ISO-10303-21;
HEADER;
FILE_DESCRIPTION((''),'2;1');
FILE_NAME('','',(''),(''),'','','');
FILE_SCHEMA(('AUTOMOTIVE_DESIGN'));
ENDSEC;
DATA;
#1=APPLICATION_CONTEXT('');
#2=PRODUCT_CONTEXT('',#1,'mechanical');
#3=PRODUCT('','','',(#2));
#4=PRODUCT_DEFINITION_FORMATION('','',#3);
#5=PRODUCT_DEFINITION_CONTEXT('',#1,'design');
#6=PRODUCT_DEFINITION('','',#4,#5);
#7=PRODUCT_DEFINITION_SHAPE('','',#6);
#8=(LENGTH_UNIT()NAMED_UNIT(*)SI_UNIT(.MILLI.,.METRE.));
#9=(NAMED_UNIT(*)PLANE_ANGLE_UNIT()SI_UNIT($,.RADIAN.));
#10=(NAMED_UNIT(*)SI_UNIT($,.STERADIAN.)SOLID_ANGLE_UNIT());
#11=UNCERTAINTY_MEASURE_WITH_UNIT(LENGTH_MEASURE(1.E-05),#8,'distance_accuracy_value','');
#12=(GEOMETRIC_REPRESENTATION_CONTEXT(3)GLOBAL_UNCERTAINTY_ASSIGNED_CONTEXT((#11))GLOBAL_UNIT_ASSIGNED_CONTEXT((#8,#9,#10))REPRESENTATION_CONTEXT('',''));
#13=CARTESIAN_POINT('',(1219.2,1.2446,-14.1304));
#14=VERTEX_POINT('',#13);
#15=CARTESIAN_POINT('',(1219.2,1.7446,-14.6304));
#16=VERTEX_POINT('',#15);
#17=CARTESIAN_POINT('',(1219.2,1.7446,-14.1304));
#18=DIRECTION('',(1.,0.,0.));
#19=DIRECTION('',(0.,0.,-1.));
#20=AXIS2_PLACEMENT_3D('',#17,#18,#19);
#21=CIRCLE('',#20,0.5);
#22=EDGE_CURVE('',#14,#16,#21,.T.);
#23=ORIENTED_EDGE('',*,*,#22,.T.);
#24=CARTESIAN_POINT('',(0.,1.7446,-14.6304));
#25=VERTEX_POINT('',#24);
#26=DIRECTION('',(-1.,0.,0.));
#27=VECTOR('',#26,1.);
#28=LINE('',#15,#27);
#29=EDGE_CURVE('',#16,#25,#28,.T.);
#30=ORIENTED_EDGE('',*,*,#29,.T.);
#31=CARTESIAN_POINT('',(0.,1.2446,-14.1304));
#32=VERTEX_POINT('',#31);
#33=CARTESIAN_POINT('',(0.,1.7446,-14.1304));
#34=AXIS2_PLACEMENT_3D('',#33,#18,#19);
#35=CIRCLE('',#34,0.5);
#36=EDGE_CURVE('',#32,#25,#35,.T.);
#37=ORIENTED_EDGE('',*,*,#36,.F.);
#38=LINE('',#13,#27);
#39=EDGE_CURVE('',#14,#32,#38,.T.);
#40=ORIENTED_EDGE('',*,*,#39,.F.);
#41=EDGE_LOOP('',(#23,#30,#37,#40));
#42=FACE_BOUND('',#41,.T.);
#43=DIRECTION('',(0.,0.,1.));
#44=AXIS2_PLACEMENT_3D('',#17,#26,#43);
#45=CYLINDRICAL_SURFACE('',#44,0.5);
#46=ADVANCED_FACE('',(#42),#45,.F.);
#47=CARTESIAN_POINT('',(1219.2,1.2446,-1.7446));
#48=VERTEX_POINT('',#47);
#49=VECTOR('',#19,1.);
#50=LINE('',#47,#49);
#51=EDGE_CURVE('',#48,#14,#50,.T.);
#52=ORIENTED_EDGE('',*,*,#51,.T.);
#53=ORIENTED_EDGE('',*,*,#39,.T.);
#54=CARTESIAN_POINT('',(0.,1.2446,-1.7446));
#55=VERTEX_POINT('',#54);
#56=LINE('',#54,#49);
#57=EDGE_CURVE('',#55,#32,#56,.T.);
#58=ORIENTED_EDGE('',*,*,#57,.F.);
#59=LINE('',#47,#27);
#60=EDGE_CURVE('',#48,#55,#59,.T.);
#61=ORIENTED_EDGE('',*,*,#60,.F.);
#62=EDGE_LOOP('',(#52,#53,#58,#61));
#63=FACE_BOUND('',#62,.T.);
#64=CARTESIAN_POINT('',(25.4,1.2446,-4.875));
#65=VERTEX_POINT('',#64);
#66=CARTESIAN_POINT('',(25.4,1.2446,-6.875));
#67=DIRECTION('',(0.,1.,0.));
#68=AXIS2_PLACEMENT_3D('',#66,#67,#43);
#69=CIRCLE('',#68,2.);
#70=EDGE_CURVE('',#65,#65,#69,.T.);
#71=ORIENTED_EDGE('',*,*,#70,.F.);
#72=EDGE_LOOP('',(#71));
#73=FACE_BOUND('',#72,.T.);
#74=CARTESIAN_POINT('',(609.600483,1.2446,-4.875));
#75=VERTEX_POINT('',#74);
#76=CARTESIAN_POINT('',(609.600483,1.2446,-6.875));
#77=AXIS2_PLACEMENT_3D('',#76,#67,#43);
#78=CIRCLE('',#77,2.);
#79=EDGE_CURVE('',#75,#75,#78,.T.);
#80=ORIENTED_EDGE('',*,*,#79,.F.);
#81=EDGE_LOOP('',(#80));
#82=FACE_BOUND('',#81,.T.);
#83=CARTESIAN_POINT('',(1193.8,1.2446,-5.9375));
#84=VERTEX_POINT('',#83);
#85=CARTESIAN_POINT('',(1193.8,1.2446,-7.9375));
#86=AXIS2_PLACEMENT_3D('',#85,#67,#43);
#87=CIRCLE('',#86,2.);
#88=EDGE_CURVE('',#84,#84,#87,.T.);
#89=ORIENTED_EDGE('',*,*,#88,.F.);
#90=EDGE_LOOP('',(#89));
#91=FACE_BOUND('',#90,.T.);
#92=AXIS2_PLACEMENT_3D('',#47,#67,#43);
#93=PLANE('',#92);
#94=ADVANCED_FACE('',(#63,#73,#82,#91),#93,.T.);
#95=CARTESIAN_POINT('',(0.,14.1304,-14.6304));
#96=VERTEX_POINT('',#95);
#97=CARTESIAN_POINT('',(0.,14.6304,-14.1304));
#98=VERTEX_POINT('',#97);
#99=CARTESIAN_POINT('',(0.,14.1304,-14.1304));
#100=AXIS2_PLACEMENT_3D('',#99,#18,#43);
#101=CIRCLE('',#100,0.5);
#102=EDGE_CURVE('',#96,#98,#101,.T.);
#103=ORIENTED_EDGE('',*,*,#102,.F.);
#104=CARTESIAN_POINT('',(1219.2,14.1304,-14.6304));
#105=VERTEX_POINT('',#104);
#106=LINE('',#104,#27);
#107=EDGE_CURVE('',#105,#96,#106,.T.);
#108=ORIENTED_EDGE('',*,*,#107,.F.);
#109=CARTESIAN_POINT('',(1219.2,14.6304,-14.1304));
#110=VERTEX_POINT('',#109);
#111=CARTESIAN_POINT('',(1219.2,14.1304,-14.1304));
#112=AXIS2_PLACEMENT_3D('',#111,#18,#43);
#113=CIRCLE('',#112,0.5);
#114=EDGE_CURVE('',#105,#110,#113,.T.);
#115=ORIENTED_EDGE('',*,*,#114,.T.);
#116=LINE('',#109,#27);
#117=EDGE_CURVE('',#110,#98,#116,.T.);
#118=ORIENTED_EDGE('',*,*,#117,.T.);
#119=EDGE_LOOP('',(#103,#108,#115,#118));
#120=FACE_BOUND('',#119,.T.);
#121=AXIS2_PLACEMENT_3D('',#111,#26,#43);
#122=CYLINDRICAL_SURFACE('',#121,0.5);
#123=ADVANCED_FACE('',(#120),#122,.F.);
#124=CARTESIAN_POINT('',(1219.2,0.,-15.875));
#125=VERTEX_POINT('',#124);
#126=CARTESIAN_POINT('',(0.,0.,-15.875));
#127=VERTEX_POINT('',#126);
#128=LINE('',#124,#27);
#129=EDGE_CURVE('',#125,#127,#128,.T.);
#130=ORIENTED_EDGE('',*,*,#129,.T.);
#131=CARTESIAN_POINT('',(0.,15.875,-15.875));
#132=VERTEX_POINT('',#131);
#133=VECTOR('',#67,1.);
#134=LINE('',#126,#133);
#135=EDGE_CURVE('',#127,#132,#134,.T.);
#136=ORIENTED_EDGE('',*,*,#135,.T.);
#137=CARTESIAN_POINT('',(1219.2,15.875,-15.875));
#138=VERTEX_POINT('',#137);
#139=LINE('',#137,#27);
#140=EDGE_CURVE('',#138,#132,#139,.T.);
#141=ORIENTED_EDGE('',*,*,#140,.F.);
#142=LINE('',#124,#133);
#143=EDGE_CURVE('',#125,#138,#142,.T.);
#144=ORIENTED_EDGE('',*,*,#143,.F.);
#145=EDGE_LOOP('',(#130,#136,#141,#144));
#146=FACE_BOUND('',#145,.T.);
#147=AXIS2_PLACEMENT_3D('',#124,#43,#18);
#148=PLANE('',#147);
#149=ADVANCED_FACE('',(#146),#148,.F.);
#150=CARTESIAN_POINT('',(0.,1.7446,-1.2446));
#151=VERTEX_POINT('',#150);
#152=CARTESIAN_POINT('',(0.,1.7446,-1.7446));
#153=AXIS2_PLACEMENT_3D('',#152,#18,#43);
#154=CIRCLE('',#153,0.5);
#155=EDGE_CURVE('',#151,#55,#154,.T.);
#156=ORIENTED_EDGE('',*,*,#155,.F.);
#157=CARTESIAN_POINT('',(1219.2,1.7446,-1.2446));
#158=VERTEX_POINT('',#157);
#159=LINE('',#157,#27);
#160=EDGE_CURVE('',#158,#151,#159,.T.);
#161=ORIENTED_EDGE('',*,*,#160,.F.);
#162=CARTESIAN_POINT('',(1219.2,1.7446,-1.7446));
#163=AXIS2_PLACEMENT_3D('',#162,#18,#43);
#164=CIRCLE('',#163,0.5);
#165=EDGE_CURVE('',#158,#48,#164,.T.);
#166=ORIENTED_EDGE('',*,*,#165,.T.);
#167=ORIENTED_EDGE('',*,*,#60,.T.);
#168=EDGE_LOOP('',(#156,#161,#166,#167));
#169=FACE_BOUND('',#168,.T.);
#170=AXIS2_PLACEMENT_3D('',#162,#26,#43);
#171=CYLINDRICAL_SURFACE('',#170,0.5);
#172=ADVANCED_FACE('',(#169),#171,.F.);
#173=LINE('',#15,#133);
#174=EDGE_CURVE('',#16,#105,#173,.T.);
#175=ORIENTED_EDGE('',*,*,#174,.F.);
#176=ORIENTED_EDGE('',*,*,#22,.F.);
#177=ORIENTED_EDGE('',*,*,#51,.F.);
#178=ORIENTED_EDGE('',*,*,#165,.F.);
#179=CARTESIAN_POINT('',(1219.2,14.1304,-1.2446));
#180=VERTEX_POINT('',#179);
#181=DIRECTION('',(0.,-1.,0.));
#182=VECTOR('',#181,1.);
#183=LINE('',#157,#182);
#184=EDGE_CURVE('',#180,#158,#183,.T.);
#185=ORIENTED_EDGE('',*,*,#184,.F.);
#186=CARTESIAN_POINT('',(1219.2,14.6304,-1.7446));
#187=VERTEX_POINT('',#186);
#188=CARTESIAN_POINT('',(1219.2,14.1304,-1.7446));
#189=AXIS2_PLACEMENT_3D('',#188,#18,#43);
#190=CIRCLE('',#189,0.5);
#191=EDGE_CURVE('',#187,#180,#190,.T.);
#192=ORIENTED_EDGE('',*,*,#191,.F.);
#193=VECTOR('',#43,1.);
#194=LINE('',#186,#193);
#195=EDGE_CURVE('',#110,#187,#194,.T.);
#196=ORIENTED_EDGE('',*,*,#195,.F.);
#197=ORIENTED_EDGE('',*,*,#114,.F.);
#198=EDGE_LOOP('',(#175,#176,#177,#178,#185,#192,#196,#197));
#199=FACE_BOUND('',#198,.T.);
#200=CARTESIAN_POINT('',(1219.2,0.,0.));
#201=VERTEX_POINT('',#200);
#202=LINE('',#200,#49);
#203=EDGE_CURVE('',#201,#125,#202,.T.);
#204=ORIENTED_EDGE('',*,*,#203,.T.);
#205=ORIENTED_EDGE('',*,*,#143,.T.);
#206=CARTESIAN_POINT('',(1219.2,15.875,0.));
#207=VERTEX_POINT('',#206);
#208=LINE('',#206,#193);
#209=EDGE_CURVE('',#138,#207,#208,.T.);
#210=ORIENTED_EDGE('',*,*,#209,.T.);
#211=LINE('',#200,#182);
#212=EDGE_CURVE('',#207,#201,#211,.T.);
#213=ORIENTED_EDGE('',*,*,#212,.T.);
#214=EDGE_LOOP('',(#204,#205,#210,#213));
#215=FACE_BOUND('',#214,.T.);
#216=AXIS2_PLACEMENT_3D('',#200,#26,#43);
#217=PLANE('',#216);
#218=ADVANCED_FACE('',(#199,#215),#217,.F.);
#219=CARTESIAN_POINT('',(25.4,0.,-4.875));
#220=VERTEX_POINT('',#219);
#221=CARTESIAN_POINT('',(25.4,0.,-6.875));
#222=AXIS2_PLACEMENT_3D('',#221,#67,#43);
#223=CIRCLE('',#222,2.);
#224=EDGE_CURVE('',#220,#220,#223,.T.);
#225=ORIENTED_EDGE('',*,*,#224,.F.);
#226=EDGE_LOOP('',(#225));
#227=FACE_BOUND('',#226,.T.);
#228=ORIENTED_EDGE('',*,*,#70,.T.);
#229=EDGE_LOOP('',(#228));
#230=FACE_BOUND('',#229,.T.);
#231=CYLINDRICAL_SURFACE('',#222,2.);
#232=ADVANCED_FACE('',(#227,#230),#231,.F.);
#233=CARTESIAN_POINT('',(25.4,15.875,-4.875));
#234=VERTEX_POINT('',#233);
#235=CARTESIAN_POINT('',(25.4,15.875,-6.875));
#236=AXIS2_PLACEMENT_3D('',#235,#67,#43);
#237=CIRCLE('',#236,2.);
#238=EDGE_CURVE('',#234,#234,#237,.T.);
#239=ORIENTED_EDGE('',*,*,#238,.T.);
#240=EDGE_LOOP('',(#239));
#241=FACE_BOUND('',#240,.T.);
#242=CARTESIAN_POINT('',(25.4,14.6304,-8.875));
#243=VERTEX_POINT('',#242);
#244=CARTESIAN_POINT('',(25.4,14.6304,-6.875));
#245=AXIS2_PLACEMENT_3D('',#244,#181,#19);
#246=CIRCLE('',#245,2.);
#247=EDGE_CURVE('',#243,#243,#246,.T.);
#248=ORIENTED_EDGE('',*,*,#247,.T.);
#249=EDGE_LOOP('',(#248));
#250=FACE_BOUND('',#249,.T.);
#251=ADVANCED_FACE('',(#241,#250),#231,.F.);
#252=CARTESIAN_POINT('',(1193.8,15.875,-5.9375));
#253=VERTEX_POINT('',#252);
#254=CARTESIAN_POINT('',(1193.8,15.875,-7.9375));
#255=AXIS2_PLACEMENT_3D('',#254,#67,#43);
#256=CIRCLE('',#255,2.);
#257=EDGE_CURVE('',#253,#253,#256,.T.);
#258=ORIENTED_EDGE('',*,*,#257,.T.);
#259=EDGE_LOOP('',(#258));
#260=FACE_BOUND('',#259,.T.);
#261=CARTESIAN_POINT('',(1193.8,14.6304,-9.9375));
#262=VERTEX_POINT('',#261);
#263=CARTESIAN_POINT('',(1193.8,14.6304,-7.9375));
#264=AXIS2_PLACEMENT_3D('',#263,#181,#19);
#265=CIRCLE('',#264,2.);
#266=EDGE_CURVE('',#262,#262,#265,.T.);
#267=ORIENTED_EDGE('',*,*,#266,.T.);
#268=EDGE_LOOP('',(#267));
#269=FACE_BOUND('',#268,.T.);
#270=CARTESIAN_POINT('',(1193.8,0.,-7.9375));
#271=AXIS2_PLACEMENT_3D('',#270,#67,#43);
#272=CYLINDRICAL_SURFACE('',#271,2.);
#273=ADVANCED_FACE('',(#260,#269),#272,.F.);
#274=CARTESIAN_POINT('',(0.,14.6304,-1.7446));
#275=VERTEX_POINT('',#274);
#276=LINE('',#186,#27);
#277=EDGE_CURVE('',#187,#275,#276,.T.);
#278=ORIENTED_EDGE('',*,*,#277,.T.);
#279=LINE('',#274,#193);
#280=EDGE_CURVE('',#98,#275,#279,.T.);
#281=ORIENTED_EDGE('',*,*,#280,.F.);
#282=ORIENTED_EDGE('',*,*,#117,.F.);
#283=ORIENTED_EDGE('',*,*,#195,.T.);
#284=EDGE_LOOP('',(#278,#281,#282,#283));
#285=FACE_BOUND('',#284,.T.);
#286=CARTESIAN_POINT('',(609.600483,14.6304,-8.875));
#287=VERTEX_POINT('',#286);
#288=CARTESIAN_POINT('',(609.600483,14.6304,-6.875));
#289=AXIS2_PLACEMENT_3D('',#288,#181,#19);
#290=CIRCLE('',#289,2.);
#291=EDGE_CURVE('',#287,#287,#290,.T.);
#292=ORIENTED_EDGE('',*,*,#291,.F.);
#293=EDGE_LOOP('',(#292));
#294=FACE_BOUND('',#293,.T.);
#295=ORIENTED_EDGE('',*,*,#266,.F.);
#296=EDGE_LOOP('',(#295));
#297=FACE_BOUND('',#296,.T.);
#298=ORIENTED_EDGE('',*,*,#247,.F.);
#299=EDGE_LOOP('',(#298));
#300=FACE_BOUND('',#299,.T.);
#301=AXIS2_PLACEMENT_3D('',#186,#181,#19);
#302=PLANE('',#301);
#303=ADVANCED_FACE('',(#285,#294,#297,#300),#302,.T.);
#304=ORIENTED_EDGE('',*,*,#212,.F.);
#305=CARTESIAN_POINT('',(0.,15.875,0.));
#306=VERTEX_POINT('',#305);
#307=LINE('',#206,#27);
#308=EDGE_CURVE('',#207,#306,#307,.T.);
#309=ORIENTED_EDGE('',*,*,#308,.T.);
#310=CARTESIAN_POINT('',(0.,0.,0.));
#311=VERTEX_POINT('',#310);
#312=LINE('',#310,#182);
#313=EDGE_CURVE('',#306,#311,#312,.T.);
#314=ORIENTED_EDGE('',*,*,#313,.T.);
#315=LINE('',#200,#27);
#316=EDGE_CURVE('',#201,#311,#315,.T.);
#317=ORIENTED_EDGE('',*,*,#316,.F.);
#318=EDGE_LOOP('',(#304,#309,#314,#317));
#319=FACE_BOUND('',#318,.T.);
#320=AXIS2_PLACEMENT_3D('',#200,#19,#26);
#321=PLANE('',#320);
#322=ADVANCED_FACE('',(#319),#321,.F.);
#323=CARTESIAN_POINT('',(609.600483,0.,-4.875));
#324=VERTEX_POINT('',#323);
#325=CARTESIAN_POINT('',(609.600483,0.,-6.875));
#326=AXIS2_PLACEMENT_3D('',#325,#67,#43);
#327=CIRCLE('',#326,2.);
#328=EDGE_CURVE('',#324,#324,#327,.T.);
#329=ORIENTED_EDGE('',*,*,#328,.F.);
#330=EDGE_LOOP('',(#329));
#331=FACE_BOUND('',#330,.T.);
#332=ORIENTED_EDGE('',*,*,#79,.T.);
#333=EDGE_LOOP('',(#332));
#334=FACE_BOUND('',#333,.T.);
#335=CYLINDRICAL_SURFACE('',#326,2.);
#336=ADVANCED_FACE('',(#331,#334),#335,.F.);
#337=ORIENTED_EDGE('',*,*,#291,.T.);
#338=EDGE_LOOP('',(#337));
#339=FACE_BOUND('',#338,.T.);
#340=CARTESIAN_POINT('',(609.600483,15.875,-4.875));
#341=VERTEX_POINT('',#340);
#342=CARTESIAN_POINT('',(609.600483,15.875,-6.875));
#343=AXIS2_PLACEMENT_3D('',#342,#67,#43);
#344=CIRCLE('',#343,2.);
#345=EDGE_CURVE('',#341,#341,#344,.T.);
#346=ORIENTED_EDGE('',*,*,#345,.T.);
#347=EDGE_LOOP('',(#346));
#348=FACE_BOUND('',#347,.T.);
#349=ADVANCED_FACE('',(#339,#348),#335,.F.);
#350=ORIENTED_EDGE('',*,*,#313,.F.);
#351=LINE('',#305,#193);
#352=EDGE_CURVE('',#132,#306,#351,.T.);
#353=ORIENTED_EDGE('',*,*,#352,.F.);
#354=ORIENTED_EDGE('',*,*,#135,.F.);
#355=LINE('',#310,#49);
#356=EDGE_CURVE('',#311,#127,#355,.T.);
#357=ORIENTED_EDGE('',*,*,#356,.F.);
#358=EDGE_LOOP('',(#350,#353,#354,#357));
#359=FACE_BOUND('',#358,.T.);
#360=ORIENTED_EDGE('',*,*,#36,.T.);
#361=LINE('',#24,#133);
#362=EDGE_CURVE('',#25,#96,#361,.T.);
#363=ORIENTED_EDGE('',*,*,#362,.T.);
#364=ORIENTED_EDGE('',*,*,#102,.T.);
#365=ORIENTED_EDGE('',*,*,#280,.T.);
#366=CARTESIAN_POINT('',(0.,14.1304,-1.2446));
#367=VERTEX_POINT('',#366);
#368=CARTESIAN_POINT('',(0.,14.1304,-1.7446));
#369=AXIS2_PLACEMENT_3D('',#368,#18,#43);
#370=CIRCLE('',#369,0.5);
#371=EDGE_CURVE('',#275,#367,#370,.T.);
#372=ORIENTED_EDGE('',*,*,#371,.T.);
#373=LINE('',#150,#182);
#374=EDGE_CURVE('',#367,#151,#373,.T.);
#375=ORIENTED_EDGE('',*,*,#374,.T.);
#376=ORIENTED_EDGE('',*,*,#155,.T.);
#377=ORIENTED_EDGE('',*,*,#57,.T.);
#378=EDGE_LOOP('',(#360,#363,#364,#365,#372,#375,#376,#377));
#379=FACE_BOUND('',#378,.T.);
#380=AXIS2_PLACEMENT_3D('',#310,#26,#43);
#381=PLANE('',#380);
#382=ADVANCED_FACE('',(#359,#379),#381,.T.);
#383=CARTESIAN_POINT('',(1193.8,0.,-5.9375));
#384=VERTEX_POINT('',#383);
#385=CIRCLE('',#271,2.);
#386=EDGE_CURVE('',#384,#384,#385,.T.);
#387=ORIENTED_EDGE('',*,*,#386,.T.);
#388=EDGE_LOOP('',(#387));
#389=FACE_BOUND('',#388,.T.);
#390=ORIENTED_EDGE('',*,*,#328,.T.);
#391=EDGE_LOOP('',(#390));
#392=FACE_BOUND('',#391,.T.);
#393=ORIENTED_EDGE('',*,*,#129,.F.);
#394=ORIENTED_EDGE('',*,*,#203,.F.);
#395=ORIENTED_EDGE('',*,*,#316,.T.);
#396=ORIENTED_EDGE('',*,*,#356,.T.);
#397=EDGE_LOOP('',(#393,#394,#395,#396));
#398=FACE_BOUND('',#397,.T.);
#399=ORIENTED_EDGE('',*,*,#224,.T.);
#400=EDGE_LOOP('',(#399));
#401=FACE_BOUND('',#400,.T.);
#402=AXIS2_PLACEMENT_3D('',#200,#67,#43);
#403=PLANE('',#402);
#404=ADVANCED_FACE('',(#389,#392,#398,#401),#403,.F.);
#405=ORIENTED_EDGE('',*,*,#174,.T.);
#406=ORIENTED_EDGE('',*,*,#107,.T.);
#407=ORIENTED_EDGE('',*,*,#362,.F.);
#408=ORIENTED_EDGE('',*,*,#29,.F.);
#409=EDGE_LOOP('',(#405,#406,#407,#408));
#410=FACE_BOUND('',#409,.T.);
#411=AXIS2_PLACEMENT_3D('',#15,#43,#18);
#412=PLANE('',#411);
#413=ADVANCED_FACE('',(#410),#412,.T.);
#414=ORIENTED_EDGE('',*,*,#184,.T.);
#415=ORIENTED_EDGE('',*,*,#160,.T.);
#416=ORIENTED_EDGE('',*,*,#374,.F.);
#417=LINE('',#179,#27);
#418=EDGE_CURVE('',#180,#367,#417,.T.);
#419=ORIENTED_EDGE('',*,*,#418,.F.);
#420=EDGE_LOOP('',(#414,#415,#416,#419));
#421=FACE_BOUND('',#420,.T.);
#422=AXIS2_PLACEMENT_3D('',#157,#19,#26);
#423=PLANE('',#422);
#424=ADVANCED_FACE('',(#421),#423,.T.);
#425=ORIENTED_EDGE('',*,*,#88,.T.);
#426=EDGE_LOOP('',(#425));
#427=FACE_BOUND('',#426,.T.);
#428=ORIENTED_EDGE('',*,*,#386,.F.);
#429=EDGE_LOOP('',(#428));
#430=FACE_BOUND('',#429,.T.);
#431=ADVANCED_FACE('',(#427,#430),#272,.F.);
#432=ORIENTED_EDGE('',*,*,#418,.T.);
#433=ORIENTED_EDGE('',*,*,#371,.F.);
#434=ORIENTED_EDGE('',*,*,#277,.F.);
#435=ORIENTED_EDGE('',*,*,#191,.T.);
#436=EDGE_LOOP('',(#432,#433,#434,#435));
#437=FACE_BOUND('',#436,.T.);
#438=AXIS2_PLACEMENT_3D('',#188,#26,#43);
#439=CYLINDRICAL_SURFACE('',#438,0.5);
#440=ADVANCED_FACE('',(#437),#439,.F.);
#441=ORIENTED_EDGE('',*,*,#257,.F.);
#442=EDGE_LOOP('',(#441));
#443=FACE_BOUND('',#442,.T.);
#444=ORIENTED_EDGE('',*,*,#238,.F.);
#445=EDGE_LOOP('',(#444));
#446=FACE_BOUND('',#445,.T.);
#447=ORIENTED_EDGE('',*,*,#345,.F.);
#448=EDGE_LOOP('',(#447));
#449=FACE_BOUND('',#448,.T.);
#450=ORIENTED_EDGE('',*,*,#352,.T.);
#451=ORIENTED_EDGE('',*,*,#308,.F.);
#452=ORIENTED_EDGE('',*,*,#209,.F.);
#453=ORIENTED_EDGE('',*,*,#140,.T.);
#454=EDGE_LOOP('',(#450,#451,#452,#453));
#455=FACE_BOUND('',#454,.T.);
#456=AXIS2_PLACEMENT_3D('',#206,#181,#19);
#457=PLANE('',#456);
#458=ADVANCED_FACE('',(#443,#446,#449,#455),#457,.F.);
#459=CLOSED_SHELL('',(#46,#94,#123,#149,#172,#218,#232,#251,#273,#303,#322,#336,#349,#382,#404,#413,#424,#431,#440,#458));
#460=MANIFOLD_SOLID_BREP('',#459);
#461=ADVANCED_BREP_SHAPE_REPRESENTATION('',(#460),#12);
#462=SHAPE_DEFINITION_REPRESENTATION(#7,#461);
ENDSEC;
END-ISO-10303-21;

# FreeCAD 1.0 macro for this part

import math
import FreeCAD as App
import Part
import Sketcher


def add_polygon(sketch, points):
    """Adds a closed chain of lines whose ends are joined by coincident constraints."""
    first, n = sketch.GeometryCount, len(points)
    for a, b in zip(points, points[1:] + points[:1]):
        sketch.addGeometry(Part.LineSegment(App.Vector(*a, 0), App.Vector(*b, 0)), False)
    for i in range(n):
        sketch.addConstraint(Sketcher.Constraint("Coincident", first + i, 2, first + (i + 1) % n, 1))

doc = App.newDocument("Part")
params = doc.addObject("Spreadsheet::Sheet", "Params")
for row, (alias, value) in enumerate([
    ("sketch1_radius", "0.5 mm"),
    ("pad1_length", "1219.2 mm"),
    ("sketch2_diameter", "4 mm"),
], start=1):
    params.set(f"A{row}", alias)
    params.set(f"B{row}", "=" + value)
    params.setAlias(f"B{row}", alias)

body = doc.addObject("PartDesign::Body", "Body")

sketch1 = doc.addObject("Sketcher::SketchObject", "Sketch")
body.addObject(sketch1)
sketch1.AttachmentSupport = (doc.YZ_Plane, [""])
sketch1.MapMode = "FlatFace"
add_polygon(sketch1, [(15.88, 0), (0, 0), (0, -15.88), (15.88, -15.88)])
sketch1.addGeometry(Part.LineSegment(App.Vector(1.24, -14.13, 0), App.Vector(1.24, -1.74, 0)), False)
sketch1.addGeometry(Part.ArcOfCircle(Part.Circle(App.Vector(1.74, -1.74, 0), App.Vector(0, 0, 1), 0.5), math.radians(90), math.radians(180)), False)
sketch1.addGeometry(Part.LineSegment(App.Vector(1.74, -1.24, 0), App.Vector(14.13, -1.24, 0)), False)
sketch1.addGeometry(Part.ArcOfCircle(Part.Circle(App.Vector(14.13, -1.74, 0), App.Vector(0, 0, 1), 0.5), math.radians(0), math.radians(90)), False)
sketch1.addGeometry(Part.LineSegment(App.Vector(14.63, -1.74, 0), App.Vector(14.63, -14.13, 0)), False)
sketch1.addGeometry(Part.ArcOfCircle(Part.Circle(App.Vector(14.13, -14.13, 0), App.Vector(0, 0, 1), 0.5), math.radians(-90), math.radians(0)), False)
sketch1.addGeometry(Part.LineSegment(App.Vector(14.13, -14.63, 0), App.Vector(1.74, -14.63, 0)), False)
sketch1.addGeometry(Part.ArcOfCircle(Part.Circle(App.Vector(1.74, -14.13, 0), App.Vector(0, 0, 1), 0.5), math.radians(180), math.radians(270)), False)
sketch1.addConstraint([
    Sketcher.Constraint("Tangent", 4, 2, 5, 2),
    Sketcher.Constraint("Tangent", 5, 1, 6, 1),
    Sketcher.Constraint("Tangent", 6, 2, 7, 2),
    Sketcher.Constraint("Tangent", 7, 1, 8, 1),
    Sketcher.Constraint("Tangent", 8, 2, 9, 2),
    Sketcher.Constraint("Tangent", 9, 1, 10, 1),
    Sketcher.Constraint("Tangent", 10, 2, 11, 2),
    Sketcher.Constraint("Tangent", 11, 1, 4, 1),
    Sketcher.Constraint("Horizontal", 0),
    Sketcher.Constraint("Vertical", 1),
    Sketcher.Constraint("Horizontal", 2),
    Sketcher.Constraint("Vertical", 3),
    Sketcher.Constraint("Vertical", 4),
    Sketcher.Constraint("Horizontal", 6),
    Sketcher.Constraint("Vertical", 8),
    Sketcher.Constraint("Horizontal", 10),
    Sketcher.Constraint("Coincident", 0, 2, -1, 1),
    Sketcher.Constraint("Equal", 5, 7),
    Sketcher.Constraint("Equal", 7, 9),
    Sketcher.Constraint("Equal", 9, 11),
    Sketcher.Constraint("Equal", 2, 1),
    Sketcher.Constraint("Equal", 10, 4),
    Sketcher.Constraint("Radius", 5, 0.5),
    Sketcher.Constraint("DistanceX", 0, 2, 0, 1, 15.875),
    Sketcher.Constraint("DistanceX", 6, 1, 6, 2, 12.3858),
    Sketcher.Constraint("DistanceX", -1, 1, 5, 3, 1.7446),
    Sketcher.Constraint("DistanceY", 5, 3, -1, 1, 1.7446),
])
sketch1.setExpression("Constraints[26]", "Params.sketch1_radius")
pad1 = doc.addObject("PartDesign::Pad", "Pad")
body.addObject(pad1)
pad1.Profile = sketch1
pad1.setExpression("Length", "Params.pad1_length")

sketch2 = doc.addObject("Sketcher::SketchObject", "Sketch001")
body.addObject(sketch2)
sketch2.AttachmentSupport = (doc.XZ_Plane, [""])
sketch2.MapMode = "FlatFace"
sketch2.AttachmentOffset = App.Placement(App.Vector(0, 0, -15.875), App.Rotation())
sketch2.addGeometry([
    Part.Circle(App.Vector(609.6, -6.9, 0), App.Vector(0, 0, 1), 2),
    Part.Circle(App.Vector(25.4, -6.9, 0), App.Vector(0, 0, 1), 2),
    Part.Circle(App.Vector(1193.8, -7.9, 0), App.Vector(0, 0, 1), 2),
], False)
sketch2.addConstraint([
    Sketcher.Constraint("Equal", 0, 1),
    Sketcher.Constraint("Equal", 1, 2),
    Sketcher.Constraint("Horizontal", 0, 3, 1, 3),
    Sketcher.Constraint("Diameter", 0, 4.0),
    Sketcher.Constraint("DistanceX", -1, 1, 1, 3, 25.4),
    Sketcher.Constraint("DistanceX", -1, 1, 2, 3, 1193.8),
    Sketcher.Constraint("DistanceY", 0, 3, -1, 1, 6.875),
    Sketcher.Constraint("DistanceY", 2, 3, -1, 1, 7.9375),
    Sketcher.Constraint("DistanceX", -1, 1, 0, 3, 609.600483),
])
sketch2.setExpression("Constraints[3]", "Params.sketch2_diameter")
pocket1 = doc.addObject("PartDesign::Pocket", "Pocket")
body.addObject(pocket1)
pocket1.Profile = sketch2
pocket1.Type = "ThroughAll"
pocket1.Reversed = True

doc.recompute()
